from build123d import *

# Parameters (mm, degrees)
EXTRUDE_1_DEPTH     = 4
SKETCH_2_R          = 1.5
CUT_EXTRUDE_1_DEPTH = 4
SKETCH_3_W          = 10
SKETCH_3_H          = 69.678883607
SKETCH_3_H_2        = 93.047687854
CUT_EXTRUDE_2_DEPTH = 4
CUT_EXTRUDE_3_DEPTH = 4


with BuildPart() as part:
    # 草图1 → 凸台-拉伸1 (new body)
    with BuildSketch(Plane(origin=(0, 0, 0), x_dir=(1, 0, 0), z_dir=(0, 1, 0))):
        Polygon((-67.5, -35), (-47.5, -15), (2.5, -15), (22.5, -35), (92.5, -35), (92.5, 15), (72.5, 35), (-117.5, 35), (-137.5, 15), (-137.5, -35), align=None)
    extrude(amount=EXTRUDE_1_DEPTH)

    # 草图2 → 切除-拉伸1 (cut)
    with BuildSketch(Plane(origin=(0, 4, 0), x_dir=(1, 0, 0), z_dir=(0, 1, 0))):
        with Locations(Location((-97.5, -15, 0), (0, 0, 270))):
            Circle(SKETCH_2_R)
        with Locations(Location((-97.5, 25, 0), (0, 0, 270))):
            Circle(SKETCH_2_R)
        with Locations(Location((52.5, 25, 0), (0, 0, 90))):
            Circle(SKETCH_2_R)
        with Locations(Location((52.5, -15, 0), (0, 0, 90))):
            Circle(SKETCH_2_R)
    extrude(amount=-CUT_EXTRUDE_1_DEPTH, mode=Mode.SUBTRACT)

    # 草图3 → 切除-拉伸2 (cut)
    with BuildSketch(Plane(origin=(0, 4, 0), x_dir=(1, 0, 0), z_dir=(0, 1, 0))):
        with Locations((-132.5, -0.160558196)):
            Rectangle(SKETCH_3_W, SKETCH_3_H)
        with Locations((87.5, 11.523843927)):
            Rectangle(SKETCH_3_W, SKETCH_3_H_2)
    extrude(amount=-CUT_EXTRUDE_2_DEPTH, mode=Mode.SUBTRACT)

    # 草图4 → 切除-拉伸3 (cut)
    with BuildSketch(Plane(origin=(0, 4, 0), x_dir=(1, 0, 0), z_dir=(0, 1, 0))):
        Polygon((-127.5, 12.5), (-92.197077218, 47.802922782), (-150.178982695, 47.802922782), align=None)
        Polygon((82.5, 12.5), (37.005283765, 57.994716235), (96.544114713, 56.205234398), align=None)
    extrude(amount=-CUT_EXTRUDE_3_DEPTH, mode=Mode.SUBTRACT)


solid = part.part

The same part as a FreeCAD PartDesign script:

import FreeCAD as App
import Part
import Sketcher
from FreeCAD import Vector
Q = App.Units.Quantity


def add_polygon(sketch, points):
    """Adds a closed chain of lines whose ends are joined by coincident constraints."""
    first, n = sketch.GeometryCount, len(points)
    for a, b in zip(points, points[1:] + points[:1]):
        sketch.addGeometry(Part.LineSegment(App.Vector(*a, 0), App.Vector(*b, 0)), False)
    for i in range(n):
        sketch.addConstraint(Sketcher.Constraint("Coincident", first + i, 2, first + (i + 1) % n, 1))

doc = App.newDocument("Part")
body = doc.addObject("PartDesign::Body", "Body")

sketch1 = body.newObject("Sketcher::SketchObject", "Sketch")
sketch1.AttachmentSupport = (doc.getObject("XZ_Plane"), [""])
sketch1.MapMode = "FlatFace"
add_polygon(sketch1, [(-68, 35), (-48, 15), (2, 15), (22, 35), (92, 35), (92, -15), (72, -35), (-118, -35), (-138, -15), (-138, 35)])
sketch1.addConstraint([
    Sketcher.Constraint("Horizontal", 1),
    Sketcher.Constraint("Horizontal", 3),
    Sketcher.Constraint("Vertical", 4),
    Sketcher.Constraint("Horizontal", 6),
    Sketcher.Constraint("Vertical", 8),
    Sketcher.Constraint("Horizontal", 9),
    Sketcher.Constraint("Perpendicular", 0, 2),
    Sketcher.Constraint("Parallel", 2, 5),
    Sketcher.Constraint("Perpendicular", 5, 7),
    Sketcher.Constraint("Horizontal", 4, 2, 7, 2),
    Sketcher.Constraint("Horizontal", 3, 2, 8, 2),
    Sketcher.Constraint("Equal", 3, 9),
    Sketcher.Constraint("Equal", 1, 4),
    Sketcher.Constraint("Equal", 0, 2),
    Sketcher.Constraint("Equal", 2, 5),
    Sketcher.Constraint("DistanceX", 1, 1, 1, 2, Q("50 mm")),
    Sketcher.Constraint("DistanceX", 3, 1, 3, 2, Q("70 mm")),
    Sketcher.Constraint("DistanceY", -1, 1, 0, 2, Q("15 mm")),
    Sketcher.Constraint("DistanceY", -1, 1, 2, 2, Q("35 mm")),
    Sketcher.Constraint("DistanceX", 0, 2, -1, 1, Q("47.5 mm")),
])
pad1 = body.newObject("PartDesign::Pad", "Pad")
pad1.Profile = sketch1
pad1.Length = 4
pad1.Reversed = True

sketch2 = body.newObject("Sketcher::SketchObject", "Sketch001")
sketch2.AttachmentSupport = (doc.getObject("XZ_Plane"), [""])
sketch2.MapMode = "FlatFace"
sketch2.AttachmentOffset = App.Placement(Vector(0, 0, -4), App.Rotation())
sketch2.addGeometry([
    Part.Circle(Vector(-97.5, 15, 0), Vector(0, 0, 1), 1.5),
    Part.Circle(Vector(-97.5, -25, 0), Vector(0, 0, 1), 1.5),
    Part.Circle(Vector(52.5, -25, 0), Vector(0, 0, 1), 1.5),
    Part.Circle(Vector(52.5, 15, 0), Vector(0, 0, 1), 1.5),
], False)
sketch2.addConstraint([
    Sketcher.Constraint("Equal", 0, 1),
    Sketcher.Constraint("Equal", 1, 2),
    Sketcher.Constraint("Equal", 2, 3),
    Sketcher.Constraint("Horizontal", 1, 3, 2, 3),
    Sketcher.Constraint("Horizontal", 0, 3, 3, 3),
    Sketcher.Constraint("Vertical", 0, 3, 1, 3),
    Sketcher.Constraint("Vertical", 2, 3, 3, 3),
    Sketcher.Constraint("Diameter", 0, Q("3 mm")),
    Sketcher.Constraint("DistanceY", -1, 1, 0, 3, Q("15 mm")),
    Sketcher.Constraint("DistanceY", 1, 3, -1, 1, Q("25 mm")),
    Sketcher.Constraint("DistanceX", 1, 3, 2, 3, Q("150 mm")),
    Sketcher.Constraint("DistanceX", 0, 3, -1, 1, Q("97.5 mm")),
])
pocket1 = body.newObject("PartDesign::Pocket", "Pocket")
pocket1.Profile = sketch2
pocket1.Length = 4
pocket1.Reversed = True

sketch3 = body.newObject("Sketcher::SketchObject", "Sketch002")
sketch3.AttachmentSupport = (doc.getObject("XZ_Plane"), [""])
sketch3.MapMode = "FlatFace"
sketch3.AttachmentOffset = App.Placement(Vector(0, 0, -4), App.Rotation())
add_polygon(sketch3, [(-138, -35), (-138, 35), (-128, 35), (-128, -35)])
add_polygon(sketch3, [(82, -58), (82, 35), (92, 35), (92, -58)])
sketch3.addConstraint([
    Sketcher.Constraint("Vertical", 0),
    Sketcher.Constraint("Horizontal", 1),
    Sketcher.Constraint("Vertical", 2),
    Sketcher.Constraint("Horizontal", 3),
    Sketcher.Constraint("Vertical", 4),
    Sketcher.Constraint("Horizontal", 5),
    Sketcher.Constraint("Vertical", 6),
    Sketcher.Constraint("Horizontal", 7),
    Sketcher.Constraint("Horizontal", 1, 2, 4, 2),
    Sketcher.Constraint("Equal", 3, 5),
    Sketcher.Constraint("DistanceX", 1, 1, 1, 2, Q("10 mm")),
    Sketcher.Constraint("DistanceY", -1, 1, 0, 2, Q("35 mm")),
    Sketcher.Constraint("DistanceX", 1, 2, 4, 2, Q("210 mm")),
    Sketcher.Constraint("DistanceX", 0, 2, -1, 1, Q("137.5 mm")),
    Sketcher.Constraint("DistanceY", 0, 1, 0, 2, Q("69.678884 mm")),
    Sketcher.Constraint("DistanceY", 4, 1, 4, 2, Q("93.047688 mm")),
])
pocket2 = body.newObject("PartDesign::Pocket", "Pocket001")
pocket2.Profile = sketch3
pocket2.Length = 4
pocket2.Reversed = True

sketch4 = body.newObject("Sketcher::SketchObject", "Sketch003")
sketch4.AttachmentSupport = (doc.getObject("XZ_Plane"), [""])
sketch4.MapMode = "FlatFace"
sketch4.AttachmentOffset = App.Placement(Vector(0, 0, -4), App.Rotation())
add_polygon(sketch4, [(-128, -12), (-92, -48), (-150, -48)])
add_polygon(sketch4, [(37, -58), (82, -12), (97, -56)])
sketch4.addConstraint([
    Sketcher.Constraint("Horizontal", 1),
    Sketcher.Constraint("Perpendicular", 0, 3),
    Sketcher.Constraint("Horizontal", 2, 2, 3, 2),
    Sketcher.Constraint("Angle", 0, Q("-45 deg")),
    Sketcher.Constraint("DistanceX", 2, 2, 3, 2, Q("210 mm")),
    Sketcher.Constraint("DistanceX", 2, 2, -1, 1, Q("127.5 mm")),
    Sketcher.Constraint("DistanceY", 2, 2, -1, 1, Q("12.5 mm")),
    Sketcher.Constraint("Distance", 4, Q("45.90626 mm")),
    Sketcher.Constraint("DistanceX", 1, 2, 1, 1, Q("57.981905 mm")),
    Sketcher.Constraint("DistanceX", 0, 2, 4, 2, Q("188.741192 mm")),
    Sketcher.Constraint("DistanceY", 4, 2, 0, 2, Q("8.402312 mm")),
    Sketcher.Constraint("DistanceX", 5, 2, 4, 2, Q("59.538831 mm")),
])
pocket3 = body.newObject("PartDesign::Pocket", "Pocket002")
pocket3.Profile = sketch4
pocket3.Length = 4
pocket3.Reversed = True

doc.recompute()
